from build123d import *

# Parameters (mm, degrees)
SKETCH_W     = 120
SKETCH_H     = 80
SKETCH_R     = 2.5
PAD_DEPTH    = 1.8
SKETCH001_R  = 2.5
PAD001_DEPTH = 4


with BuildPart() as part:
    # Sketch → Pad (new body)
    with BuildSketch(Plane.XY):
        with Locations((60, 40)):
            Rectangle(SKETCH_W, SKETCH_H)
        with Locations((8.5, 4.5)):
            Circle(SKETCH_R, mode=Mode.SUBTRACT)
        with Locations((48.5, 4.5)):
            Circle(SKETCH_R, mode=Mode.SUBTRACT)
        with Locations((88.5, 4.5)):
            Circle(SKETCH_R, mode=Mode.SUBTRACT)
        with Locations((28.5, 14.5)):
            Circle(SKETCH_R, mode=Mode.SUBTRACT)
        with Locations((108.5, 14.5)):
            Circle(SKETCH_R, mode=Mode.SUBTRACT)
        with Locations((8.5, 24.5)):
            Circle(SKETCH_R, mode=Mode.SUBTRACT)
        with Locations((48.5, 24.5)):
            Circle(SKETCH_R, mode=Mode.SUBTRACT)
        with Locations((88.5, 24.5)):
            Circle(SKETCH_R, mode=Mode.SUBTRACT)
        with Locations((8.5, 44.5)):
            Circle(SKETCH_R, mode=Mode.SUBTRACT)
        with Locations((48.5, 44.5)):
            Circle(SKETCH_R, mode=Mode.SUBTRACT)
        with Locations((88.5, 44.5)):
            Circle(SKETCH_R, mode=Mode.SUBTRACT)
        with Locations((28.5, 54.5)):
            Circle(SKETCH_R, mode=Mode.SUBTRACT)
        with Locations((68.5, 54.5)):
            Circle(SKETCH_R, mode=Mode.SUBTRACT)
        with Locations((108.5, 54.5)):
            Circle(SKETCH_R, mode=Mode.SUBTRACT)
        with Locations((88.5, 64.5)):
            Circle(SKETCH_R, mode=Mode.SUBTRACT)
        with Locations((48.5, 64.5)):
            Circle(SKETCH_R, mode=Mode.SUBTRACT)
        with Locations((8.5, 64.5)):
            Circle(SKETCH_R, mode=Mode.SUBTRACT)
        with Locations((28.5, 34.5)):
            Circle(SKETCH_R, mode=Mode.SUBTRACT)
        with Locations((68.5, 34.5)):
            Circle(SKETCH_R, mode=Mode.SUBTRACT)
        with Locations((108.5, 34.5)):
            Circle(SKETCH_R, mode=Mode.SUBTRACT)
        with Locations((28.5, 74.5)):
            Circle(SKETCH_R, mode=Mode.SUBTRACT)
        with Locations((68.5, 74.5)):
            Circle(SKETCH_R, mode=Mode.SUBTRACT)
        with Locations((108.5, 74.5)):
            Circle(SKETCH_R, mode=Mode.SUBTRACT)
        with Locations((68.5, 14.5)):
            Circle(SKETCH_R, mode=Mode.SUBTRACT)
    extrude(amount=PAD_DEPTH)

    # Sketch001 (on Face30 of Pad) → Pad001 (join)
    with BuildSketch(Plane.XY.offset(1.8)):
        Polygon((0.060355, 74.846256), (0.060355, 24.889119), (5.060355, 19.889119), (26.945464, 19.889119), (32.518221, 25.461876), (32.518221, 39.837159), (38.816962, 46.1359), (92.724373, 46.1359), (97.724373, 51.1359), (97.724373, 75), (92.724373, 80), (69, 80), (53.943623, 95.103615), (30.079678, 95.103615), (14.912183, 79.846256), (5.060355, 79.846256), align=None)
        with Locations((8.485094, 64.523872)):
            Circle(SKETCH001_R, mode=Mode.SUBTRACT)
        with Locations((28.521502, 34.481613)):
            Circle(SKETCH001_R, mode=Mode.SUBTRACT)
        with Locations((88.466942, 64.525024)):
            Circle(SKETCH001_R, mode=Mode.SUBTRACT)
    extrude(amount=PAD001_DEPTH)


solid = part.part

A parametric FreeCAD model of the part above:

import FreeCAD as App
import Part
import Sketcher

V = App.Vector


def add_polygon(sketch, points):
    """Adds a closed chain of lines whose ends are joined by coincident constraints."""
    first, n = sketch.GeometryCount, len(points)
    for a, b in zip(points, points[1:] + points[:1]):
        sketch.addGeometry(Part.LineSegment(App.Vector(*a, 0), App.Vector(*b, 0)), False)
    for i in range(n):
        sketch.addConstraint(Sketcher.Constraint("Coincident", first + i, 2, first + (i + 1) % n, 1))

doc = App.newDocument("Part")
params = doc.addObject("Spreadsheet::Sheet", "Params")
for row, (alias, value) in enumerate([
    ("sketch1_diameter", "5 mm"),
    ("sketch1_width", "120 mm"),
    ("sketch1_height", "80 mm"),
    ("pad1_length", "1.8 mm"),
    ("sketch2_diameter", "5 mm"),
    ("pad2_length", "4 mm"),
], start=1):
    params.set(f"A{row}", alias)
    params.set(f"B{row}", "=" + value)
    params.setAlias(f"B{row}", alias)

body = doc.addObject("PartDesign::Body", "Body")

sketch1 = doc.addObject("Sketcher::SketchObject", "Sketch")
body.addObject(sketch1)
sketch1.AttachmentSupport = (doc.XY_Plane, [""])
sketch1.MapMode = "FlatFace"
add_polygon(sketch1, [(0, 80), (0, 0), (120, 0), (120, 80)])
sketch1.addGeometry(Part.Circle(V(8.5, 4.5, 0), V(0, 0, 1), 2.5), False)
sketch1.addGeometry(Part.Circle(V(28.5, 14.5, 0), V(0, 0, 1), 2.5), False)
sketch1.addGeometry(Part.Circle(V(48.5, 4.5, 0), V(0, 0, 1), 2.5), False)
sketch1.addGeometry(Part.Circle(V(8.5, 24.5, 0), V(0, 0, 1), 2.5), False)
sketch1.addGeometry(Part.Circle(V(28.5, 34.5, 0), V(0, 0, 1), 2.5), False)
sketch1.addGeometry(Part.Circle(V(48.5, 24.5, 0), V(0, 0, 1), 2.5), False)
sketch1.addGeometry(Part.Circle(V(68.5, 14.5, 0), V(0, 0, 1), 2.5), False)
sketch1.addGeometry(Part.Circle(V(88.5, 4.5, 0), V(0, 0, 1), 2.5), False)
sketch1.addGeometry(Part.Circle(V(108.5, 14.5, 0), V(0, 0, 1), 2.5), False)
sketch1.addGeometry(Part.Circle(V(68.5, 34.5, 0), V(0, 0, 1), 2.5), False)
sketch1.addGeometry(Part.Circle(V(88.5, 24.5, 0), V(0, 0, 1), 2.5), False)
sketch1.addGeometry(Part.Circle(V(108.5, 34.5, 0), V(0, 0, 1), 2.5), False)
sketch1.addGeometry(Part.Circle(V(8.5, 44.5, 0), V(0, 0, 1), 2.5), False)
sketch1.addGeometry(Part.Circle(V(28.5, 54.5, 0), V(0, 0, 1), 2.5), False)
sketch1.addGeometry(Part.Circle(V(48.5, 44.5, 0), V(0, 0, 1), 2.5), False)
sketch1.addGeometry(Part.Circle(V(8.5, 64.5, 0), V(0, 0, 1), 2.5), False)
sketch1.addGeometry(Part.Circle(V(28.5, 74.5, 0), V(0, 0, 1), 2.5), False)
sketch1.addGeometry(Part.Circle(V(48.5, 64.5, 0), V(0, 0, 1), 2.5), False)
sketch1.addGeometry(Part.Circle(V(68.5, 54.5, 0), V(0, 0, 1), 2.5), False)
sketch1.addGeometry(Part.Circle(V(88.5, 44.5, 0), V(0, 0, 1), 2.5), False)
sketch1.addGeometry(Part.Circle(V(108.5, 54.5, 0), V(0, 0, 1), 2.5), False)
sketch1.addGeometry(Part.Circle(V(68.5, 74.5, 0), V(0, 0, 1), 2.5), False)
sketch1.addGeometry(Part.Circle(V(88.5, 64.5, 0), V(0, 0, 1), 2.5), False)
sketch1.addGeometry(Part.Circle(V(108.5, 74.5, 0), V(0, 0, 1), 2.5), False)
sketch1.addConstraint(Sketcher.Constraint("Vertical", 0))
sketch1.addConstraint(Sketcher.Constraint("Horizontal", 1))
sketch1.addConstraint(Sketcher.Constraint("Vertical", 2))
sketch1.addConstraint(Sketcher.Constraint("Horizontal", 3))
sketch1.addConstraint(Sketcher.Constraint("Coincident", 0, 2, -1, 1))
sketch1.addConstraint(Sketcher.Constraint("Equal", 4, 5))
sketch1.addConstraint(Sketcher.Constraint("Equal", 5, 6))
sketch1.addConstraint(Sketcher.Constraint("Equal", 6, 7))
sketch1.addConstraint(Sketcher.Constraint("Equal", 7, 8))
sketch1.addConstraint(Sketcher.Constraint("Equal", 8, 9))
sketch1.addConstraint(Sketcher.Constraint("Equal", 9, 10))
sketch1.addConstraint(Sketcher.Constraint("Equal", 10, 11))
sketch1.addConstraint(Sketcher.Constraint("Equal", 11, 12))
sketch1.addConstraint(Sketcher.Constraint("Equal", 12, 13))
sketch1.addConstraint(Sketcher.Constraint("Equal", 13, 14))
sketch1.addConstraint(Sketcher.Constraint("Equal", 14, 15))
sketch1.addConstraint(Sketcher.Constraint("Equal", 15, 16))
sketch1.addConstraint(Sketcher.Constraint("Equal", 16, 17))
sketch1.addConstraint(Sketcher.Constraint("Equal", 17, 18))
sketch1.addConstraint(Sketcher.Constraint("Equal", 18, 19))
sketch1.addConstraint(Sketcher.Constraint("Equal", 19, 20))
sketch1.addConstraint(Sketcher.Constraint("Equal", 20, 21))
sketch1.addConstraint(Sketcher.Constraint("Equal", 21, 22))
sketch1.addConstraint(Sketcher.Constraint("Equal", 22, 23))
sketch1.addConstraint(Sketcher.Constraint("Equal", 23, 24))
sketch1.addConstraint(Sketcher.Constraint("Equal", 24, 25))
sketch1.addConstraint(Sketcher.Constraint("Equal", 25, 26))
sketch1.addConstraint(Sketcher.Constraint("Equal", 26, 27))
sketch1.addConstraint(Sketcher.Constraint("Horizontal", 4, 3, 6, 3))
sketch1.addConstraint(Sketcher.Constraint("Horizontal", 7, 3, 9, 3))
sketch1.addConstraint(Sketcher.Constraint("Horizontal", 5, 3, 10, 3))
sketch1.addConstraint(Sketcher.Constraint("Horizontal", 6, 3, 11, 3))
sketch1.addConstraint(Sketcher.Constraint("Horizontal", 10, 3, 12, 3))
sketch1.addConstraint(Sketcher.Constraint("Horizontal", 8, 3, 13, 3))
sketch1.addConstraint(Sketcher.Constraint("Horizontal", 9, 3, 14, 3))
sketch1.addConstraint(Sketcher.Constraint("Horizontal", 13, 3, 15, 3))
sketch1.addConstraint(Sketcher.Constraint("Horizontal", 16, 3, 18, 3))
sketch1.addConstraint(Sketcher.Constraint("Horizontal", 19, 3, 21, 3))
sketch1.addConstraint(Sketcher.Constraint("Horizontal", 17, 3, 22, 3))
sketch1.addConstraint(Sketcher.Constraint("Horizontal", 18, 3, 23, 3))
sketch1.addConstraint(Sketcher.Constraint("Horizontal", 22, 3, 24, 3))
sketch1.addConstraint(Sketcher.Constraint("Horizontal", 20, 3, 25, 3))
sketch1.addConstraint(Sketcher.Constraint("Horizontal", 21, 3, 26, 3))
sketch1.addConstraint(Sketcher.Constraint("Horizontal", 25, 3, 27, 3))
sketch1.addConstraint(Sketcher.Constraint("Vertical", 4, 3, 7, 3))
sketch1.addConstraint(Sketcher.Constraint("Vertical", 5, 3, 8, 3))
sketch1.addConstraint(Sketcher.Constraint("Vertical", 6, 3, 9, 3))
sketch1.addConstraint(Sketcher.Constraint("Vertical", 10, 3, 13, 3))
sketch1.addConstraint(Sketcher.Constraint("Vertical", 11, 3, 14, 3))
sketch1.addConstraint(Sketcher.Constraint("Vertical", 12, 3, 15, 3))
sketch1.addConstraint(Sketcher.Constraint("Vertical", 7, 3, 16, 3))
sketch1.addConstraint(Sketcher.Constraint("Vertical", 8, 3, 17, 3))
sketch1.addConstraint(Sketcher.Constraint("Vertical", 9, 3, 18, 3))
sketch1.addConstraint(Sketcher.Constraint("Vertical", 16, 3, 19, 3))
sketch1.addConstraint(Sketcher.Constraint("Vertical", 17, 3, 20, 3))
sketch1.addConstraint(Sketcher.Constraint("Vertical", 18, 3, 21, 3))
sketch1.addConstraint(Sketcher.Constraint("Vertical", 13, 3, 22, 3))
sketch1.addConstraint(Sketcher.Constraint("Vertical", 14, 3, 23, 3))
sketch1.addConstraint(Sketcher.Constraint("Vertical", 15, 3, 24, 3))
sketch1.addConstraint(Sketcher.Constraint("Vertical", 22, 3, 25, 3))
sketch1.addConstraint(Sketcher.Constraint("Vertical", 23, 3, 26, 3))
sketch1.addConstraint(Sketcher.Constraint("Vertical", 24, 3, 27, 3))
sketch1.addConstraint(Sketcher.Constraint("Diameter", 4, 5.0))
sketch1.addConstraint(Sketcher.Constraint("DistanceX", 1, 1, 1, 2, 120.0))
sketch1.addConstraint(Sketcher.Constraint("DistanceY", 0, 2, 0, 1, 80.0))
sketch1.addConstraint(Sketcher.Constraint("DistanceX", 4, 3, 5, 3, 20.0))
sketch1.addConstraint(Sketcher.Constraint("DistanceY", 4, 3, 5, 3, 10.0))
sketch1.addConstraint(Sketcher.Constraint("DistanceX", 5, 3, 6, 3, 20.0))
sketch1.addConstraint(Sketcher.Constraint("DistanceY", 4, 3, 7, 3, 20.0))
sketch1.addConstraint(Sketcher.Constraint("DistanceY", 5, 3, 8, 3, 20.0))
sketch1.addConstraint(Sketcher.Constraint("DistanceX", 6, 3, 10, 3, 20.0))
sketch1.addConstraint(Sketcher.Constraint("DistanceX", 10, 3, 11, 3, 20.0))
sketch1.addConstraint(Sketcher.Constraint("DistanceX", 11, 3, 12, 3, 20.0))
sketch1.addConstraint(Sketcher.Constraint("DistanceY", 7, 3, 16, 3, 20.0))
sketch1.addConstraint(Sketcher.Constraint("DistanceY", 8, 3, 17, 3, 20.0))
sketch1.addConstraint(Sketcher.Constraint("DistanceY", 16, 3, 19, 3, 20.0))
sketch1.addConstraint(Sketcher.Constraint("DistanceY", 17, 3, 20, 3, 20.0))
sketch1.addConstraint(Sketcher.Constraint("DistanceX", -1, 1, 4, 3, 8.5))
sketch1.addConstraint(Sketcher.Constraint("DistanceY", -1, 1, 4, 3, 4.5))
sketch1.setExpression("Constraints[66]", "Params.sketch1_diameter")
sketch1.setExpression("Constraints[67]", "Params.sketch1_width")
sketch1.setExpression("Constraints[68]", "Params.sketch1_height")
pad1 = doc.addObject("PartDesign::Pad", "Pad")
body.addObject(pad1)
pad1.Profile = sketch1
pad1.setExpression("Length", "Params.pad1_length")

sketch2 = doc.addObject("Sketcher::SketchObject", "Sketch001")
body.addObject(sketch2)
sketch2.AttachmentSupport = (doc.XY_Plane, [""])
sketch2.MapMode = "FlatFace"
sketch2.AttachmentOffset = App.Placement(V(0, 0, 1.8), App.Rotation())
add_polygon(sketch2, [(0.1, 74.8), (0.1, 24.9), (5.1, 19.9), (26.9, 19.9), (32.5, 25.5), (32.5, 39.8), (38.8, 46.1), (92.7, 46.1), (97.7, 51.1), (97.7, 75), (92.7, 80), (69, 80), (53.9, 95.1), (30.1, 95.1), (14.9, 79.8), (5.1, 79.8)])
sketch2.addGeometry(Part.Circle(V(28.5, 34.5, 0), V(0, 0, 1), 2.5), False)
sketch2.addGeometry(Part.Circle(V(8.5, 64.5, 0), V(0, 0, 1), 2.5), False)
sketch2.addGeometry(Part.Circle(V(88.5, 64.5, 0), V(0, 0, 1), 2.5), False)
sketch2.addConstraint(Sketcher.Constraint("Vertical", 0))
sketch2.addConstraint(Sketcher.Constraint("Horizontal", 2))
sketch2.addConstraint(Sketcher.Constraint("Vertical", 4))
sketch2.addConstraint(Sketcher.Constraint("Horizontal", 6))
sketch2.addConstraint(Sketcher.Constraint("Vertical", 8))
sketch2.addConstraint(Sketcher.Constraint("Horizontal", 10))
sketch2.addConstraint(Sketcher.Constraint("Horizontal", 12))
sketch2.addConstraint(Sketcher.Constraint("Horizontal", 14))
sketch2.addConstraint(Sketcher.Constraint("Equal", 16, 17))
sketch2.addConstraint(Sketcher.Constraint("Equal", 17, 18))
sketch2.addConstraint(Sketcher.Constraint("Perpendicular", 1, 3))
sketch2.addConstraint(Sketcher.Constraint("Parallel", 3, 5))
sketch2.addConstraint(Sketcher.Constraint("Parallel", 5, 7))
sketch2.addConstraint(Sketcher.Constraint("Perpendicular", 7, 9))
sketch2.addConstraint(Sketcher.Constraint("Perpendicular", 9, 15))
sketch2.addConstraint(Sketcher.Constraint("Vertical", 6, 2, 9, 2))
sketch2.addConstraint(Sketcher.Constraint("Vertical", 1, 2, 14, 2))
sketch2.addConstraint(Sketcher.Constraint("Equal", 1, 7))
sketch2.addConstraint(Sketcher.Constraint("Equal", 7, 9))
sketch2.addConstraint(Sketcher.Constraint("Diameter", 16, 5.0))
sketch2.addConstraint(Sketcher.Constraint("DistanceY", -1, 1, 8, 2, 75.0))
sketch2.addConstraint(Sketcher.Constraint("DistanceY", -1, 1, 9, 2, 80.0))
sketch2.addConstraint(Sketcher.Constraint("DistanceX", -1, 1, 10, 2, 69.0))
sketch2.addConstraint(Sketcher.Constraint("DistanceY", 8, 1, 8, 2, 23.8641))
sketch2.addConstraint(Sketcher.Constraint("DistanceX", 2, 1, 2, 2, 21.885109))
sketch2.addConstraint(Sketcher.Constraint("DistanceX", 6, 1, 6, 2, 53.907411))
sketch2.addConstraint(Sketcher.Constraint("DistanceX", 14, 2, 14, 1, 9.851828))
sketch2.addConstraint(Sketcher.Constraint("Distance", 3, 7.881069))
sketch2.addConstraint(Sketcher.Constraint("Distance", 11, 21.326361))
sketch2.addConstraint(Sketcher.Constraint("DistanceX", 10, 2, 10, 1, 23.724373))
sketch2.addConstraint(Sketcher.Constraint("DistanceX", 12, 2, 12, 1, 23.863945))
sketch2.addConstraint(Sketcher.Constraint("DistanceY", 0, 2, 0, 1, 49.957137))
sketch2.addConstraint(Sketcher.Constraint("DistanceY", 4, 1, 4, 2, 14.375283))
sketch2.addConstraint(Sketcher.Constraint("DistanceY", -1, 1, 17, 3, 64.523872))
sketch2.addConstraint(Sketcher.Constraint("DistanceY", -1, 1, 0, 2, 24.889119))
sketch2.addConstraint(Sketcher.Constraint("DistanceX", -1, 1, 12, 2, 30.079678))
sketch2.addConstraint(Sketcher.Constraint("DistanceX", 17, 3, 16, 3, 20.036408))
sketch2.addConstraint(Sketcher.Constraint("DistanceY", 16, 3, 17, 3, 30.042259))
sketch2.addConstraint(Sketcher.Constraint("DistanceX", 16, 3, 18, 3, 59.94544))
sketch2.addConstraint(Sketcher.Constraint("DistanceY", 16, 3, 18, 3, 30.043411))
sketch2.addConstraint(Sketcher.Constraint("DistanceX", 0, 2, 17, 3, 8.424739))
sketch2.setExpression("Constraints[35]", "Params.sketch2_diameter")
pad2 = doc.addObject("PartDesign::Pad", "Pad001")
body.addObject(pad2)
pad2.Profile = sketch2
pad2.setExpression("Length", "Params.pad2_length")

doc.recompute()
